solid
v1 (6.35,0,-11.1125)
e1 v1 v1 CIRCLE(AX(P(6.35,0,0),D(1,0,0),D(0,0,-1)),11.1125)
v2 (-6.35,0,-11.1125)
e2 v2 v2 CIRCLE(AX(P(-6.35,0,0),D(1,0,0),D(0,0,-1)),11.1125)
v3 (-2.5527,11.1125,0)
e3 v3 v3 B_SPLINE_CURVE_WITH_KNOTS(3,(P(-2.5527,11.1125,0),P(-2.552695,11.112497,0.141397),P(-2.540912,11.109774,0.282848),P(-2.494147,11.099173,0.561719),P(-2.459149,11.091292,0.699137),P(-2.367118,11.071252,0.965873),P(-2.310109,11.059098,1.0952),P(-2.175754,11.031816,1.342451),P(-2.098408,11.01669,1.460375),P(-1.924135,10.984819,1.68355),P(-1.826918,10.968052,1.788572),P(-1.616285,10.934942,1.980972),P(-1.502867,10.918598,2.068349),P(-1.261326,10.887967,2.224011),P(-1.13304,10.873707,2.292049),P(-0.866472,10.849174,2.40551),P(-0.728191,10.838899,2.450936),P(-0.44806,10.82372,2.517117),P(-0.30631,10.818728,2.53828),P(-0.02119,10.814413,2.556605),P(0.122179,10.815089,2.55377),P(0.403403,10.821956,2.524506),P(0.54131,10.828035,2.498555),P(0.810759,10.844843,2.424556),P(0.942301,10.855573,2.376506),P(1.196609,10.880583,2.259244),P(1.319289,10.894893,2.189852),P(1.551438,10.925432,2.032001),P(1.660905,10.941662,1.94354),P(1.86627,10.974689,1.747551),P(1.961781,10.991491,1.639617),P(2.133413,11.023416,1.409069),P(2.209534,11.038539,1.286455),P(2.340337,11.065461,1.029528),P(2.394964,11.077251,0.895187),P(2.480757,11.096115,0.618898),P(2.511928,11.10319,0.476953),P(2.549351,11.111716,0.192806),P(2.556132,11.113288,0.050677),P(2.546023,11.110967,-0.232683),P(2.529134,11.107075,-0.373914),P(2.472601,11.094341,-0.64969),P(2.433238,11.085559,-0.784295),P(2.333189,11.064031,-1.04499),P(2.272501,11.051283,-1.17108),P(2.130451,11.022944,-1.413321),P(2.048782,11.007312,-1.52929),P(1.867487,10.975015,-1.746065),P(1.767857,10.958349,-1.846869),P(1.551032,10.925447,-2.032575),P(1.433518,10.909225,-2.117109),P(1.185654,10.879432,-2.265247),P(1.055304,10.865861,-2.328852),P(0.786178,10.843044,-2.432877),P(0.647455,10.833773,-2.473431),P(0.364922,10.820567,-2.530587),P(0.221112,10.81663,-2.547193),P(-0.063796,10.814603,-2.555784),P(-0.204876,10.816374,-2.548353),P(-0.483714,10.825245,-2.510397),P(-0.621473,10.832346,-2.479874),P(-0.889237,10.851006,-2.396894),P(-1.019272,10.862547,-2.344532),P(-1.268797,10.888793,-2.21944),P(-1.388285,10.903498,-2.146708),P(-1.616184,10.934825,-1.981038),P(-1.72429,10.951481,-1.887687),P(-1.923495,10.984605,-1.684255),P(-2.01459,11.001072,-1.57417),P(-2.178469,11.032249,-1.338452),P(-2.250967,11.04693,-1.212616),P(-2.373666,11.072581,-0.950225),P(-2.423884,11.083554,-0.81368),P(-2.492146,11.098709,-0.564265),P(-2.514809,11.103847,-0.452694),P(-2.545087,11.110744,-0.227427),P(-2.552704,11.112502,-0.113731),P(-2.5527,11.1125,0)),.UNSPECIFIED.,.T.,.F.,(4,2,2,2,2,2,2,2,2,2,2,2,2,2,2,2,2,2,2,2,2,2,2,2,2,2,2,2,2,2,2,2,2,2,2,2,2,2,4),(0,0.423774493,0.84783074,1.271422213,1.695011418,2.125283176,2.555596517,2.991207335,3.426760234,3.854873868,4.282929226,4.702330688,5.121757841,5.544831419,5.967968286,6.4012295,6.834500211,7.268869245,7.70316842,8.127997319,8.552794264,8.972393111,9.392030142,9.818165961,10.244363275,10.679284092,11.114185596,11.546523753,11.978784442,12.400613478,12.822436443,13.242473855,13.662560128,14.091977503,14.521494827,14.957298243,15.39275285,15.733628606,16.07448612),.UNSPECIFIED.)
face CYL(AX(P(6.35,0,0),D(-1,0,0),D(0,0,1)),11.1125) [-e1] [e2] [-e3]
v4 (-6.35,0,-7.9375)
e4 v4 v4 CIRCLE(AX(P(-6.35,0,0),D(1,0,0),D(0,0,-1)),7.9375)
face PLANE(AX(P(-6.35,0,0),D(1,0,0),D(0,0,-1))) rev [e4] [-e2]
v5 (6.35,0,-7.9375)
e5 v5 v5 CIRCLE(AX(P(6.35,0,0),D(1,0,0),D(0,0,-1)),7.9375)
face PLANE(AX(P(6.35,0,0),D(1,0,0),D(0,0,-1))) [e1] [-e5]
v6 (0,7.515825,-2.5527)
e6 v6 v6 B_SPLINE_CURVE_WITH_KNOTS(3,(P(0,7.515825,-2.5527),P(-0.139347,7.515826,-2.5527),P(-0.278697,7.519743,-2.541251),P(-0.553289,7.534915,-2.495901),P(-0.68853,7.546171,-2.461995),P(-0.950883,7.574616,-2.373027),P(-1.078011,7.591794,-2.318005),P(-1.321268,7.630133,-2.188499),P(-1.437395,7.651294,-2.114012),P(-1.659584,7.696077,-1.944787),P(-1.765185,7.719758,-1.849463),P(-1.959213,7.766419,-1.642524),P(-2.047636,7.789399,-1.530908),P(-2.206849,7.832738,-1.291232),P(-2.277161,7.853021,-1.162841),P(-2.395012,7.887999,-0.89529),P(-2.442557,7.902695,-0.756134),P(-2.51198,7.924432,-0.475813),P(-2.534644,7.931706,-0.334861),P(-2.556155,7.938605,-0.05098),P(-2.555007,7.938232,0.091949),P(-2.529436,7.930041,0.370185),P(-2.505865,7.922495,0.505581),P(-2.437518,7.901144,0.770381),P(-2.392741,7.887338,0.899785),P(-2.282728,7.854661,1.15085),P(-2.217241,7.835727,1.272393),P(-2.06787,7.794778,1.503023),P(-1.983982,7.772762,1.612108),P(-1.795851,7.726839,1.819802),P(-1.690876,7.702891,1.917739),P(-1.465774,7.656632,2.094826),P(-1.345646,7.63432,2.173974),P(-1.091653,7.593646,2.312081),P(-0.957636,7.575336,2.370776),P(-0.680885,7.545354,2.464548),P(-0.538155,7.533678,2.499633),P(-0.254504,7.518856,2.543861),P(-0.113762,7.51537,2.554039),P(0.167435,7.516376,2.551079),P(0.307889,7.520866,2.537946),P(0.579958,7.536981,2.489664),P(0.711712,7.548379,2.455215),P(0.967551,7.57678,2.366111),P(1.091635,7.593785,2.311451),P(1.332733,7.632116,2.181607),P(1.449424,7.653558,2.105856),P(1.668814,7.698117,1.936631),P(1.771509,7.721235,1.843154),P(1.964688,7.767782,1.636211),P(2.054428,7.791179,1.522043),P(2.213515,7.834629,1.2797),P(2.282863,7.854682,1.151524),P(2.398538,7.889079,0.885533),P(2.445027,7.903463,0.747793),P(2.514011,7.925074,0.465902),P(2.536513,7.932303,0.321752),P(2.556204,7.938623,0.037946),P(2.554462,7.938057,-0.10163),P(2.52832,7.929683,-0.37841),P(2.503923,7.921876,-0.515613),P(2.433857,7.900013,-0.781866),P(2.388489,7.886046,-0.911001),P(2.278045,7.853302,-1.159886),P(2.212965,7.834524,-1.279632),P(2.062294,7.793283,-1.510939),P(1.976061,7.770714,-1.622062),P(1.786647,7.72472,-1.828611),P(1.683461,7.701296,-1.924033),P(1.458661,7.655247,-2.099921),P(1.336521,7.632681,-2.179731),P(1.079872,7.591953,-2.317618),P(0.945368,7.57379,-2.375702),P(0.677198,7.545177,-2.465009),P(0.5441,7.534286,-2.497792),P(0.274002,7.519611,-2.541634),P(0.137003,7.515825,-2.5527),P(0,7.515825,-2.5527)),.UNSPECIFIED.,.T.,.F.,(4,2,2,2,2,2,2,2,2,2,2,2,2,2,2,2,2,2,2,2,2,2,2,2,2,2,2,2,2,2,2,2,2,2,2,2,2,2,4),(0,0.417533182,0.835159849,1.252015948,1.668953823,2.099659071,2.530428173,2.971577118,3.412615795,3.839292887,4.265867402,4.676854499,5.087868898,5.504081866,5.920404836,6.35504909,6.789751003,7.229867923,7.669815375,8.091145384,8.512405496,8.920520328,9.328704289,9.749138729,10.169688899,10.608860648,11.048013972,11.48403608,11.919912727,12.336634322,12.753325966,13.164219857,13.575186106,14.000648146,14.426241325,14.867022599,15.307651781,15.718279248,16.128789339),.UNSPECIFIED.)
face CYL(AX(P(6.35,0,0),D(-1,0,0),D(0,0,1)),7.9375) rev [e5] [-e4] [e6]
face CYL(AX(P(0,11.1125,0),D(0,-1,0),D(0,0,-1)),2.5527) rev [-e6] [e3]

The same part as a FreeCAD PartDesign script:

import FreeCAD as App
import Part
import Sketcher

V = App.Vector
Q = App.Units.Quantity

doc = App.newDocument("Part")
body = doc.addObject("PartDesign::Body", "Body")

sketch1 = body.newObject("Sketcher::SketchObject", "Sketch")
sketch1.AttachmentSupport = (doc.getObject("YZ_Plane"), [""])
sketch1.MapMode = "FlatFace"
sketch1.addGeometry(Part.Circle(V(0, 0, 0), V(0, 0, 1), 11.1125), False)
sketch1.addGeometry(Part.Circle(V(0, 0, 0), V(0, 0, 1), 7.9375), False)
sketch1.addConstraint(Sketcher.Constraint("Coincident", 0, 3, -1, 1))
sketch1.addConstraint(Sketcher.Constraint("Coincident", 1, 3, -1, 1))
sketch1.addConstraint(Sketcher.Constraint("Diameter", 0, Q("0.875 in")))
sketch1.addConstraint(Sketcher.Constraint("Diameter", 1, Q("0.625 in")))
pad1 = body.newObject("PartDesign::Pad", "Pad")
pad1.Profile = sketch1
pad1.Length = Q("0.5 in")
pad1.Midplane = True

sketch2 = body.newObject("Sketcher::SketchObject", "Sketch001")
sketch2.AttachmentSupport = (doc.getObject("XZ_Plane"), [""])
sketch2.MapMode = "FlatFace"
sketch2.addGeometry(Part.Circle(V(0, 0, 0), V(0, 0, 1), 2.5527), False)
sketch2.addConstraint(Sketcher.Constraint("Coincident", 0, 3, -1, 1))
sketch2.addConstraint(Sketcher.Constraint("Diameter", 0, Q("0.201 in")))
pocket1 = body.newObject("PartDesign::Pocket", "Pocket")
pocket1.Profile = sketch2
pocket1.Type = "ThroughAll"

doc.recompute()
